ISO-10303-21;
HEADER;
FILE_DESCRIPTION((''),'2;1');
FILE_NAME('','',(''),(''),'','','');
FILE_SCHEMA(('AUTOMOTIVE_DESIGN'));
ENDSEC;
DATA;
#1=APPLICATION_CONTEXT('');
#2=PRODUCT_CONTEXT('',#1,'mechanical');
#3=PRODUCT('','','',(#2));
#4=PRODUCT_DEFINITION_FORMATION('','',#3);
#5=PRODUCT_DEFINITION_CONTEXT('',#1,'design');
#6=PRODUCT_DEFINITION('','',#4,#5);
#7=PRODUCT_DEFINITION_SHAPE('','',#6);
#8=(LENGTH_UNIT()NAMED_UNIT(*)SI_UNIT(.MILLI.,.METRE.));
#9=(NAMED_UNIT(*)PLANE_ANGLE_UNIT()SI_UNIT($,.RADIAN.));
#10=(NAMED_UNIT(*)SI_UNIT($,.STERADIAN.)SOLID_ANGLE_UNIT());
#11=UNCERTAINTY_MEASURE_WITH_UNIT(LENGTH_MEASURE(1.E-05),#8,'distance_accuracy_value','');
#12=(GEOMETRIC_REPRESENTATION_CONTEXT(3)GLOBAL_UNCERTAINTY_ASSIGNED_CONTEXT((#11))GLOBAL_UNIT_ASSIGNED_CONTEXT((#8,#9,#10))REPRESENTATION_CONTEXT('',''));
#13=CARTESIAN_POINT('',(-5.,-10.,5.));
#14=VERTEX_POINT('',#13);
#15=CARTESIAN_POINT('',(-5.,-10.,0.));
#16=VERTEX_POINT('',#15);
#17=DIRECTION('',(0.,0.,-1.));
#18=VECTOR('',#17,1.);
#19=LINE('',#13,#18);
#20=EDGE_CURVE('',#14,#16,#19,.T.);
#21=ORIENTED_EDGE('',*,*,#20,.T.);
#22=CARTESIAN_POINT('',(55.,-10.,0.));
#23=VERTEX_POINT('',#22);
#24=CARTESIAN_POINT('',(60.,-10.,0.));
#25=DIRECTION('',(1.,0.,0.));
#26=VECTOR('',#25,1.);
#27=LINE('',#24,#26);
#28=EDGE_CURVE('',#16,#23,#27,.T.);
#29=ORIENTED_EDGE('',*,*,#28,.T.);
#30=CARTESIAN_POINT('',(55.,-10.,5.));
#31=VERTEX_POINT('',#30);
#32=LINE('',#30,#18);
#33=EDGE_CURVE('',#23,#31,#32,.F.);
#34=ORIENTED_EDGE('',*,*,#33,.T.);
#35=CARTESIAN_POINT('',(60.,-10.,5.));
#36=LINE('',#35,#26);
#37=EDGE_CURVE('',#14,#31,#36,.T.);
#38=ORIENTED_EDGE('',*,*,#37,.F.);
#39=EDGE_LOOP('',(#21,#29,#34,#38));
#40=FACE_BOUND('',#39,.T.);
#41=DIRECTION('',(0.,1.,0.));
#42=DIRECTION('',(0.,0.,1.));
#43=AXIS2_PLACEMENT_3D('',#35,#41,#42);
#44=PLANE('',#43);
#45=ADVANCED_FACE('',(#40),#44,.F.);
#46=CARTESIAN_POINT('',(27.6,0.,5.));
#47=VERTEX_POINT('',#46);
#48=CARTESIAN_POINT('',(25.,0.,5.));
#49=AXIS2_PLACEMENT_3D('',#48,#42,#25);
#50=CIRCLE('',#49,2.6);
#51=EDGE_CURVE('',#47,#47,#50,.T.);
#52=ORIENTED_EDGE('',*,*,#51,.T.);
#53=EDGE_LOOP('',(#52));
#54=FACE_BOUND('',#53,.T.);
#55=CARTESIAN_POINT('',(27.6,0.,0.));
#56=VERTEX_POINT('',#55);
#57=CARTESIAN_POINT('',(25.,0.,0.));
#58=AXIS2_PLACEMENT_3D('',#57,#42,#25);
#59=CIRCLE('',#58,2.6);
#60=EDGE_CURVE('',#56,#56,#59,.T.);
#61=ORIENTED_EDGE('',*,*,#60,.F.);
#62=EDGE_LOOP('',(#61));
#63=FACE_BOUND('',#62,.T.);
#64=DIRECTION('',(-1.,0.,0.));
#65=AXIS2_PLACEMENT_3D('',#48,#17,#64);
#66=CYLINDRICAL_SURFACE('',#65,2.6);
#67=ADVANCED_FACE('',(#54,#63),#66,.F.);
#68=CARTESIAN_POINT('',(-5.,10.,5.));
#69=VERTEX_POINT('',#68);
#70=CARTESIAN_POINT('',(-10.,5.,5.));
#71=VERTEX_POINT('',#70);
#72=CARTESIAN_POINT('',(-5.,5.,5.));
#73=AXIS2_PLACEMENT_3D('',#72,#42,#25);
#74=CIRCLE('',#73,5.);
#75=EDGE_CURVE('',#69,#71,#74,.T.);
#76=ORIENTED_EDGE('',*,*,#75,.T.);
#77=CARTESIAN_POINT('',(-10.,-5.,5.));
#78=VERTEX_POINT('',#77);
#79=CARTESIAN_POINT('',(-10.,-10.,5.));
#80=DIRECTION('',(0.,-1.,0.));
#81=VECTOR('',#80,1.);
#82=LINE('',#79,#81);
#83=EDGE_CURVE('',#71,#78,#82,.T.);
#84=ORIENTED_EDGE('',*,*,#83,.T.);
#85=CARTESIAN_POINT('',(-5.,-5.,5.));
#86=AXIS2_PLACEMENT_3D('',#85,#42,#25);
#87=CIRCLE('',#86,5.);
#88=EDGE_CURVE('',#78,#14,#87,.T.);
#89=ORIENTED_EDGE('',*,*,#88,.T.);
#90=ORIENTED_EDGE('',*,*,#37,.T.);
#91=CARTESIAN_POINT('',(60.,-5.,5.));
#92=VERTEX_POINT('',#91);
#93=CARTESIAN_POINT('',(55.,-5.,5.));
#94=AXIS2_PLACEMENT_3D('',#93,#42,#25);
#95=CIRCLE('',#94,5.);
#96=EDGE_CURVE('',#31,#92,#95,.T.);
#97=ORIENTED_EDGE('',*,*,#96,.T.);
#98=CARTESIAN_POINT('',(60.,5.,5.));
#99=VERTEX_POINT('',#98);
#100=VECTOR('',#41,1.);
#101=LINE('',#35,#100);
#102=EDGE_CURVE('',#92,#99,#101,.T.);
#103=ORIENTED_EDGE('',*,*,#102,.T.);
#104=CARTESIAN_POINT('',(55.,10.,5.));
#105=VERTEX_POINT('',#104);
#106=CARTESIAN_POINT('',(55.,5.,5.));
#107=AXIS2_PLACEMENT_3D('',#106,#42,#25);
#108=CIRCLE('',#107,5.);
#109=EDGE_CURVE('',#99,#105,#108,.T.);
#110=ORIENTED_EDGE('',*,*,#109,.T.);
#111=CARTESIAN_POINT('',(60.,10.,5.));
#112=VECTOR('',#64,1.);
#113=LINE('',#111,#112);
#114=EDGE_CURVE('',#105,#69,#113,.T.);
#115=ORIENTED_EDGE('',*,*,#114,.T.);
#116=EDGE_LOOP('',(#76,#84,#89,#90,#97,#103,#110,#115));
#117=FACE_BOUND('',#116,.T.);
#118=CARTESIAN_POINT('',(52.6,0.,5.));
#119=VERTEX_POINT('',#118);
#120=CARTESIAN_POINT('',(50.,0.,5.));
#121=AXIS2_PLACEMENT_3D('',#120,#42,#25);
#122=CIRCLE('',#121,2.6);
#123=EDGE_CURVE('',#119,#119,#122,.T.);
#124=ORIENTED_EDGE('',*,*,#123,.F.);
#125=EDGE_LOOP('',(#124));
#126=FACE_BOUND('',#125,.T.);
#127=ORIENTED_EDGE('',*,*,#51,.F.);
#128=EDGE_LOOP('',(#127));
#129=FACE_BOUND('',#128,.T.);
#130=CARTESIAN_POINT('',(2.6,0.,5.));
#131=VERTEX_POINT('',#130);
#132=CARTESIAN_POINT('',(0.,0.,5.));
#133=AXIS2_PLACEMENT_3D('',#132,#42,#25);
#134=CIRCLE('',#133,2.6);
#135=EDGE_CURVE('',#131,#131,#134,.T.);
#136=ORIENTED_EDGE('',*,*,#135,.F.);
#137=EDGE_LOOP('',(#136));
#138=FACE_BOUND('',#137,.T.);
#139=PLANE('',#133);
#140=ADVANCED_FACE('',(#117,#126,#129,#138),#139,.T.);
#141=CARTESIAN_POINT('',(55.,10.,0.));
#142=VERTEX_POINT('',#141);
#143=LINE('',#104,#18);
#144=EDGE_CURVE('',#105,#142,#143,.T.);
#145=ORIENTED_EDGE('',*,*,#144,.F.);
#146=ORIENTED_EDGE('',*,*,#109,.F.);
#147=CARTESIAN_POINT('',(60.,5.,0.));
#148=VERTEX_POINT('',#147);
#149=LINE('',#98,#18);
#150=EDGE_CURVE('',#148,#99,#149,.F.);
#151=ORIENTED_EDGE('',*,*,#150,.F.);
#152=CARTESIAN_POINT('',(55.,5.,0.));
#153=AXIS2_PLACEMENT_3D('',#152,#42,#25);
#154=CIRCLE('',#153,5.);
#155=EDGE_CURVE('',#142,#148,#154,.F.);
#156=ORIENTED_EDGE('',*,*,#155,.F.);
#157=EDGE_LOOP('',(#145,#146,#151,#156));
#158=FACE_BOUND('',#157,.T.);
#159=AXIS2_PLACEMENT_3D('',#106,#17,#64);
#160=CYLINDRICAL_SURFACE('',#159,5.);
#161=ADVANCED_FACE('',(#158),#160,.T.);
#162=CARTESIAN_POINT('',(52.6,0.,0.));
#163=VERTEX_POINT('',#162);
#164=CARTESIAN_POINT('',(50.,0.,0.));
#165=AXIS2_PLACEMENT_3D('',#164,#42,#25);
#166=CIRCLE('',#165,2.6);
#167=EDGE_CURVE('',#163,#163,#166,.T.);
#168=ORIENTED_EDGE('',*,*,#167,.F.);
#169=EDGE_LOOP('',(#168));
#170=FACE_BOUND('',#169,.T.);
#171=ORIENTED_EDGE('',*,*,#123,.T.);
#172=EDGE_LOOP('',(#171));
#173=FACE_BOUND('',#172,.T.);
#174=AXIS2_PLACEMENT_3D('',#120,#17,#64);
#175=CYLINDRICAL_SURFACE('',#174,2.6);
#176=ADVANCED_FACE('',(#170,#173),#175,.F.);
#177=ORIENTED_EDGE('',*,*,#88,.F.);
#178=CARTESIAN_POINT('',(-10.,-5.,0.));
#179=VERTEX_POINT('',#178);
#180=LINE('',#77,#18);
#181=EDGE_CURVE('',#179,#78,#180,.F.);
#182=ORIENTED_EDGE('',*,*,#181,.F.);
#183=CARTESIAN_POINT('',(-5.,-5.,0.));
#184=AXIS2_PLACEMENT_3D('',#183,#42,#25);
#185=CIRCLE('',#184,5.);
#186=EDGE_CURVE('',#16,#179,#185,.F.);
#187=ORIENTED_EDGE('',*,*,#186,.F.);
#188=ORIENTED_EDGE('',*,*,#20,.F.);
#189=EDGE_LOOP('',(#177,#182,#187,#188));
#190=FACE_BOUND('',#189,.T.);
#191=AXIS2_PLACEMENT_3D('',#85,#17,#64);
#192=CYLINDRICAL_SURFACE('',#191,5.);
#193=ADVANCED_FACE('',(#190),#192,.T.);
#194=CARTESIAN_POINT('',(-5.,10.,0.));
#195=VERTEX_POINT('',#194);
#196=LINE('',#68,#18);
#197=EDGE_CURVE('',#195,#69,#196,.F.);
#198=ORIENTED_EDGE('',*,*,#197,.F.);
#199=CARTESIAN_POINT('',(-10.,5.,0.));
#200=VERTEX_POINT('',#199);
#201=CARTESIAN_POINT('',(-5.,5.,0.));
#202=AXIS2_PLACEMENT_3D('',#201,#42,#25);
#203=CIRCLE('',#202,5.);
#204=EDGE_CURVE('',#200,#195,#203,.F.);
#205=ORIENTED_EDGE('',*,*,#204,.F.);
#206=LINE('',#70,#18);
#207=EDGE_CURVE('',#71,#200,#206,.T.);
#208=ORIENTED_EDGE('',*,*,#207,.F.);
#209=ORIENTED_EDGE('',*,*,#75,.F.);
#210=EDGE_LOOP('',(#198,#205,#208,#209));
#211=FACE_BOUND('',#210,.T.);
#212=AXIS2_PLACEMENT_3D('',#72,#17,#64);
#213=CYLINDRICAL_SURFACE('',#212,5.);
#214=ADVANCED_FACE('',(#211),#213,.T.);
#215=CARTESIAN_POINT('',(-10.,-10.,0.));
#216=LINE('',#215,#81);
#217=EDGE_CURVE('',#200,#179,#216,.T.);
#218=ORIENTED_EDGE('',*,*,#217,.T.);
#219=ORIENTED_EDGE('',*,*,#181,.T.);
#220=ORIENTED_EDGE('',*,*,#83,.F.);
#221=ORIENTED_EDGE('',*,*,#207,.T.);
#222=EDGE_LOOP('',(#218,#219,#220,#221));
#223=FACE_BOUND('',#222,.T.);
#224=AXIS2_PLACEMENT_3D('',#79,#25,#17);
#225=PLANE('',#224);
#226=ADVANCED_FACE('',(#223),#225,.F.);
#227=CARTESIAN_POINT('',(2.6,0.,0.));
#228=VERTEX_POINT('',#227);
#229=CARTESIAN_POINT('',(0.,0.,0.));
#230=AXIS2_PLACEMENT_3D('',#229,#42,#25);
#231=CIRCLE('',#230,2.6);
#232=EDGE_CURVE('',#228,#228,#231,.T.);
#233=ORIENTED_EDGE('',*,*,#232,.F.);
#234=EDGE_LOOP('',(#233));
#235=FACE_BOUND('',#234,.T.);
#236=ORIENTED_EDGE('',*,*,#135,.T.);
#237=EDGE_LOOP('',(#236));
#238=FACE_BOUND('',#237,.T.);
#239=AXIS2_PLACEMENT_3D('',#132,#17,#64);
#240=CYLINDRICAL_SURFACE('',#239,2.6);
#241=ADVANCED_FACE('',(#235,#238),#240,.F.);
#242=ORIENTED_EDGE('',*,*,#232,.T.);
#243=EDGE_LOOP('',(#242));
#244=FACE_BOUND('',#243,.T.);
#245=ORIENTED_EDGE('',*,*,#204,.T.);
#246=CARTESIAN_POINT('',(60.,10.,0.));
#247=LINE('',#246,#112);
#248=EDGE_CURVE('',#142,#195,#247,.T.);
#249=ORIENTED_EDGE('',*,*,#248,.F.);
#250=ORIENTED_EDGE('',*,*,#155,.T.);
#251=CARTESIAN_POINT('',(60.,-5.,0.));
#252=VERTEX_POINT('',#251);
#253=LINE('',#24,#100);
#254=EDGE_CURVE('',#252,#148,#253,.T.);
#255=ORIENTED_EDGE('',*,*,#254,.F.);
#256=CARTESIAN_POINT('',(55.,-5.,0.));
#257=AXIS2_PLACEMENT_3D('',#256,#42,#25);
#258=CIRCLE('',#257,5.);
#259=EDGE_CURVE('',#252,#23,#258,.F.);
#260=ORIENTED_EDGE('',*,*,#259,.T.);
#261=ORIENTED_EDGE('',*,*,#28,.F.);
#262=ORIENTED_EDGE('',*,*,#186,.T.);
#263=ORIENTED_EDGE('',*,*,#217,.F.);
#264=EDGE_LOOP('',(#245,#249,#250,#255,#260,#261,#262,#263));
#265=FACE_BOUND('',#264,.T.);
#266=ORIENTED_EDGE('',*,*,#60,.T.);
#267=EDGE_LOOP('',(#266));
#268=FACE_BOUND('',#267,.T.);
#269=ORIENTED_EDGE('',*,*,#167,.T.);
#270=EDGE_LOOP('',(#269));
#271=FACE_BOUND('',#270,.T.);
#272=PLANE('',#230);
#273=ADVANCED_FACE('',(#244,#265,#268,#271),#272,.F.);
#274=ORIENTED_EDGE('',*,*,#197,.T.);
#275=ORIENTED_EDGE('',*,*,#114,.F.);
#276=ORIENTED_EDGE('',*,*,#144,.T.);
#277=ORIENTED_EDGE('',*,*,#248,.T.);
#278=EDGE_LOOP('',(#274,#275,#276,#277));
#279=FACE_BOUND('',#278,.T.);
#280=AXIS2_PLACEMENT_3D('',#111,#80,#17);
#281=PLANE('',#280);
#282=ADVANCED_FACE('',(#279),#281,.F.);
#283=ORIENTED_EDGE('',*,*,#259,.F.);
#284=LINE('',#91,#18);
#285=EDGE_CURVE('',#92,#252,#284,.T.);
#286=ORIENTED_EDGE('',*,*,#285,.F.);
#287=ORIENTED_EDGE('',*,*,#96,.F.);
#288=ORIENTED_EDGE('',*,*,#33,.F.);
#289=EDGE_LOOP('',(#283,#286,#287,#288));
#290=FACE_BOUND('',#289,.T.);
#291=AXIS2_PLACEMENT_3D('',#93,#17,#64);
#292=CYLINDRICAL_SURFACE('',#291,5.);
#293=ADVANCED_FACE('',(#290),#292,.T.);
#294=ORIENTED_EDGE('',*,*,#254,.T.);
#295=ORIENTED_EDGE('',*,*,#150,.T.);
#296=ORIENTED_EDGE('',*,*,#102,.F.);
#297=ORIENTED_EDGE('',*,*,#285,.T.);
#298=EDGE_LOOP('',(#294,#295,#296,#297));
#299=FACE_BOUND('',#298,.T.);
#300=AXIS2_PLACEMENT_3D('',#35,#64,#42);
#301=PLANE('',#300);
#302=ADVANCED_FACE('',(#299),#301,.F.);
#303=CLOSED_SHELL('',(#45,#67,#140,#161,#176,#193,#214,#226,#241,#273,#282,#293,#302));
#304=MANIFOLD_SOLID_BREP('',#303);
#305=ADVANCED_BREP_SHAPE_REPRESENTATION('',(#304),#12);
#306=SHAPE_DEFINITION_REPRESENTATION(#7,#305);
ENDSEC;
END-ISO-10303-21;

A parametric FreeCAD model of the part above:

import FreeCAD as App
import Part
import Sketcher
Q = App.Units.Quantity


def edges_at(feature, points):
    """Names of the edges that pass closest to the given points."""
    edges = feature.Shape.Edges
    near = lambda p: min(range(len(edges)), key=lambda i: edges[i].distToShape(Part.Vertex(*p))[0])
    return sorted({f"Edge{near(p) + 1}" for p in points})

doc = App.newDocument("Part")
body = doc.addObject("PartDesign::Body", "Body")

# Sketch on XY plane
sketch1 = doc.addObject("Sketcher::SketchObject", "Sketch")
body.addObject(sketch1)
sketch1.AttachmentSupport = (doc.XY_Plane, [""])
sketch1.MapMode = "FlatFace"
sketch1.addGeometry(Part.LineSegment(App.Vector(-10, 10, 0), App.Vector(-10, -10, 0)), False)
sketch1.addGeometry(Part.LineSegment(App.Vector(-10, -10, 0), App.Vector(60, -10, 0)), False)
sketch1.addGeometry(Part.LineSegment(App.Vector(60, -10, 0), App.Vector(60, 10, 0)), False)
sketch1.addGeometry(Part.LineSegment(App.Vector(60, 10, 0), App.Vector(-10, 10, 0)), False)
sketch1.addGeometry(Part.Circle(App.Vector(0, 0, 0), App.Vector(0, 0, 1), 2.6), False)
sketch1.addGeometry(Part.Circle(App.Vector(25, 0, 0), App.Vector(0, 0, 1), 2.6), False)
sketch1.addGeometry(Part.Circle(App.Vector(50, 0, 0), App.Vector(0, 0, 1), 2.6), False)
sketch1.addConstraint(Sketcher.Constraint("Coincident", 0, 2, 1, 1))
sketch1.addConstraint(Sketcher.Constraint("Coincident", 1, 2, 2, 1))
sketch1.addConstraint(Sketcher.Constraint("Coincident", 2, 2, 3, 1))
sketch1.addConstraint(Sketcher.Constraint("Coincident", 3, 2, 0, 1))
sketch1.addConstraint(Sketcher.Constraint("Vertical", 0))
sketch1.addConstraint(Sketcher.Constraint("Horizontal", 1))
sketch1.addConstraint(Sketcher.Constraint("Vertical", 2))
sketch1.addConstraint(Sketcher.Constraint("Horizontal", 3))
sketch1.addConstraint(Sketcher.Constraint("Coincident", 4, 3, -1, 1))
sketch1.addConstraint(Sketcher.Constraint("Equal", 4, 5))
sketch1.addConstraint(Sketcher.Constraint("Equal", 5, 6))
sketch1.addConstraint(Sketcher.Constraint("PointOnObject", 5, 3, -1))
sketch1.addConstraint(Sketcher.Constraint("PointOnObject", 6, 3, -1))
sketch1.addConstraint(Sketcher.Constraint("Diameter", 4, Q("5.2 mm")))
sketch1.addConstraint(Sketcher.Constraint("DistanceX", 1, 1, 1, 2, Q("70 mm")))
sketch1.addConstraint(Sketcher.Constraint("DistanceY", 0, 2, 0, 1, Q("20 mm")))
sketch1.addConstraint(Sketcher.Constraint("DistanceX", -1, 1, 5, 3, Q("25 mm")))
sketch1.addConstraint(Sketcher.Constraint("DistanceX", -1, 1, 6, 3, Q("50 mm")))
sketch1.addConstraint(Sketcher.Constraint("DistanceX", 0, 2, -1, 1, Q("10 mm")))
sketch1.addConstraint(Sketcher.Constraint("DistanceY", 0, 2, -1, 1, Q("10 mm")))
pad1 = doc.addObject("PartDesign::Pad", "Pad")
body.addObject(pad1)
pad1.Profile = sketch1
pad1.Length = 5
doc.recompute()

fillet = doc.addObject("PartDesign::Fillet", "Fillet")
body.addObject(fillet)
fillet.Base = (pad1, edges_at(pad1, [
    (-10, 10, 2.5),
    (60, 10, 2.5),
    (60, -10, 2.5),
    (-10, -10, 2.5),
]))
fillet.Radius = 5

doc.recompute()
